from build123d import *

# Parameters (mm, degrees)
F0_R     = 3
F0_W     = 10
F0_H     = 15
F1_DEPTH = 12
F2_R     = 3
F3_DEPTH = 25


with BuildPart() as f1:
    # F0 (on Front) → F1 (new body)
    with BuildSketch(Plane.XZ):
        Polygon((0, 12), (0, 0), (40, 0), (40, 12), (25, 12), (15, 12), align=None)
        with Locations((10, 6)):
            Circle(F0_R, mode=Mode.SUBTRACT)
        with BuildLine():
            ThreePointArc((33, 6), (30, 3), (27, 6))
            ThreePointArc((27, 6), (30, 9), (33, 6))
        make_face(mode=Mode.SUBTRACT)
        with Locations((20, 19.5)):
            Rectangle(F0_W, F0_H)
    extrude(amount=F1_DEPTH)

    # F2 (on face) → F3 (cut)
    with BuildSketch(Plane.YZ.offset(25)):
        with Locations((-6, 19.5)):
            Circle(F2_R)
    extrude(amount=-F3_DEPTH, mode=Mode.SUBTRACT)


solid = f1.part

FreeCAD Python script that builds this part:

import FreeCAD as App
import Part
import Sketcher
Q = App.Units.Quantity

doc = App.newDocument("Part")
body = doc.addObject("PartDesign::Body", "Body")

sketch1 = body.newObject("Sketcher::SketchObject", "Sketch")
sketch1.AttachmentSupport = (doc.getObject("XZ_Plane"), [""])
sketch1.MapMode = "FlatFace"
sketch1.addGeometry([
    Part.LineSegment(App.Vector(0, 12, 0), App.Vector(0, 0, 0)),
    Part.LineSegment(App.Vector(0, 0, 0), App.Vector(40, 0, 0)),
    Part.LineSegment(App.Vector(40, 0, 0), App.Vector(40, 12, 0)),
    Part.LineSegment(App.Vector(40, 12, 0), App.Vector(25, 12, 0)),
    Part.LineSegment(App.Vector(25, 12, 0), App.Vector(25, 27, 0)),
    Part.LineSegment(App.Vector(25, 27, 0), App.Vector(15, 27, 0)),
    Part.LineSegment(App.Vector(15, 27, 0), App.Vector(15, 12, 0)),
    Part.LineSegment(App.Vector(15, 12, 0), App.Vector(0, 12, 0)),
    Part.Circle(App.Vector(10, 6, 0), App.Vector(0, 0, 1), 3),
    Part.Circle(App.Vector(30, 6, 0), App.Vector(0, 0, 1), 3),
], False)
sketch1.addConstraint([
    Sketcher.Constraint("Coincident", 0, 2, 1, 1),
    Sketcher.Constraint("Coincident", 1, 2, 2, 1),
    Sketcher.Constraint("Coincident", 2, 2, 3, 1),
    Sketcher.Constraint("Coincident", 3, 2, 4, 1),
    Sketcher.Constraint("Coincident", 4, 2, 5, 1),
    Sketcher.Constraint("Coincident", 5, 2, 6, 1),
    Sketcher.Constraint("Coincident", 6, 2, 7, 1),
    Sketcher.Constraint("Coincident", 7, 2, 0, 1),
    Sketcher.Constraint("Vertical", 0),
    Sketcher.Constraint("Horizontal", 1),
    Sketcher.Constraint("Vertical", 2),
    Sketcher.Constraint("Horizontal", 3),
    Sketcher.Constraint("Vertical", 4),
    Sketcher.Constraint("Horizontal", 5),
    Sketcher.Constraint("Vertical", 6),
    Sketcher.Constraint("Horizontal", 7),
    Sketcher.Constraint("Coincident", 0, 2, -1, 1),
    Sketcher.Constraint("Equal", 8, 9),
    Sketcher.Constraint("Horizontal", 8, 3, 9, 3),
    Sketcher.Constraint("Horizontal", 3, 2, 6, 2),
    Sketcher.Constraint("Equal", 3, 7),
    Sketcher.Constraint("Equal", 7, 4),
    Sketcher.Constraint("Diameter", 8, Q("6 mm")),
    Sketcher.Constraint("DistanceX", 1, 1, 1, 2, Q("40 mm")),
    Sketcher.Constraint("DistanceX", 3, 2, 3, 1, Q("15 mm")),
    Sketcher.Constraint("DistanceY", 0, 2, 0, 1, Q("12 mm")),
    Sketcher.Constraint("DistanceX", -1, 1, 8, 3, Q("10 mm")),
    Sketcher.Constraint("DistanceY", -1, 1, 8, 3, Q("6 mm")),
    Sketcher.Constraint("DistanceX", -1, 1, 9, 3, Q("30 mm")),
])
pad1 = body.newObject("PartDesign::Pad", "Pad")
pad1.Profile = sketch1
pad1.Length = 12

sketch2 = body.newObject("Sketcher::SketchObject", "Sketch001")
sketch2.AttachmentSupport = (doc.getObject("YZ_Plane"), [""])
sketch2.MapMode = "FlatFace"
sketch2.AttachmentOffset = App.Placement(App.Vector(0, 0, 25), App.Rotation())
sketch2.addGeometry(Part.Circle(App.Vector(-6, 19.5, 0), App.Vector(0, 0, 1), 3), False)
sketch2.addConstraint([
    Sketcher.Constraint("Diameter", 0, Q("6 mm")),
    Sketcher.Constraint("DistanceX", 0, 3, -1, 1, Q("6 mm")),
    Sketcher.Constraint("DistanceY", -1, 1, 0, 3, Q("19.5 mm")),
])
pocket1 = body.newObject("PartDesign::Pocket", "Pocket")
pocket1.Profile = sketch2
pocket1.Length = 25

doc.recompute()
